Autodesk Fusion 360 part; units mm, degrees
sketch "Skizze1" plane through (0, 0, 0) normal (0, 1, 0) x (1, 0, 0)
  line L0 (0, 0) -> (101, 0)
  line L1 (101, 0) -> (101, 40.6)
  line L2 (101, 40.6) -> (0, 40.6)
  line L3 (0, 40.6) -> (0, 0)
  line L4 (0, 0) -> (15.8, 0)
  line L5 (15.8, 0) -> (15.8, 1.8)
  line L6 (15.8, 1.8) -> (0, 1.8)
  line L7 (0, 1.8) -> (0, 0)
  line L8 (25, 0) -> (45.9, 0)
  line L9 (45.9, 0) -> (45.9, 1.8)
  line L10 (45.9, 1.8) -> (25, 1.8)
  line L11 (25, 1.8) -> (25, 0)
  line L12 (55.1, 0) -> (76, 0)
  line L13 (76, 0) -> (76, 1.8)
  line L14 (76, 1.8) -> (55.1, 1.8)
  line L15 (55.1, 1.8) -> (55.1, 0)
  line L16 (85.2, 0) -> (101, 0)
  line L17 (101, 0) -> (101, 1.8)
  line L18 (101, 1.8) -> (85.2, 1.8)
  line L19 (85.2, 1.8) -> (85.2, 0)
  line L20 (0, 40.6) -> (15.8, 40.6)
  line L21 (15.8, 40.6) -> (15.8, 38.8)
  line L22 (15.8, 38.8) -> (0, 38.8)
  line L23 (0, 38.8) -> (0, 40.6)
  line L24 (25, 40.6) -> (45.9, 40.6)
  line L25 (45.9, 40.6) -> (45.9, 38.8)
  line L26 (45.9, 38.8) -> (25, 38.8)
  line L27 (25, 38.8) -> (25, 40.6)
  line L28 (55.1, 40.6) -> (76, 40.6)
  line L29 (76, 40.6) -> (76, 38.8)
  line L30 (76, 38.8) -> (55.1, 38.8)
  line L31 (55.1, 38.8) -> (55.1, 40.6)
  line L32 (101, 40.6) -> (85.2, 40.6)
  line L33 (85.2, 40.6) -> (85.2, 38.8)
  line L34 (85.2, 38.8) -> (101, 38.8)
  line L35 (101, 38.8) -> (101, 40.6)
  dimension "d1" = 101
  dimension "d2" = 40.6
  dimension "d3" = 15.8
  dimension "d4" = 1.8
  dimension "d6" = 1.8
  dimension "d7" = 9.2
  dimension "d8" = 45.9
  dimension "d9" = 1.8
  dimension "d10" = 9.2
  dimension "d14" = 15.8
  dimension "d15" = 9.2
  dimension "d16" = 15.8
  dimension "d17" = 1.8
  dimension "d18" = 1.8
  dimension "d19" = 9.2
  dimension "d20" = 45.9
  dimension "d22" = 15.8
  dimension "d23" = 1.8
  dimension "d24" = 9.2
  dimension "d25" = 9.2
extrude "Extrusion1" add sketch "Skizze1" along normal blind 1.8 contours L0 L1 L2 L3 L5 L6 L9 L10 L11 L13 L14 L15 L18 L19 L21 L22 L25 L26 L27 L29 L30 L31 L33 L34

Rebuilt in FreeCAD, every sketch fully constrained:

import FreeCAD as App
import Part
import Sketcher
Q = App.Units.Quantity

doc = App.newDocument("Part")
body = doc.addObject("PartDesign::Body", "Body")

sketch1 = doc.addObject("Sketcher::SketchObject", "Sketch")
body.addObject(sketch1)
sketch1.AttachmentSupport = (doc.XZ_Plane, [""])
sketch1.MapMode = "FlatFace"
sketch1.addGeometry([
    Part.LineSegment(App.Vector(15.8, -1.8, 0), App.Vector(15.8, 0, 0)),
    Part.LineSegment(App.Vector(15.8, 0, 0), App.Vector(25, 0, 0)),
    Part.LineSegment(App.Vector(25, 0, 0), App.Vector(25, -1.8, 0)),
    Part.LineSegment(App.Vector(25, -1.8, 0), App.Vector(45.9, -1.8, 0)),
    Part.LineSegment(App.Vector(45.9, -1.8, 0), App.Vector(45.9, 0, 0)),
    Part.LineSegment(App.Vector(45.9, 0, 0), App.Vector(55.1, 0, 0)),
    Part.LineSegment(App.Vector(55.1, 0, 0), App.Vector(55.1, -1.8, 0)),
    Part.LineSegment(App.Vector(55.1, -1.8, 0), App.Vector(76, -1.8, 0)),
    Part.LineSegment(App.Vector(76, -1.8, 0), App.Vector(76, 0, 0)),
    Part.LineSegment(App.Vector(76, 0, 0), App.Vector(85.2, 0, 0)),
    Part.LineSegment(App.Vector(85.2, 0, 0), App.Vector(85.2, -1.8, 0)),
    Part.LineSegment(App.Vector(85.2, -1.8, 0), App.Vector(101, -1.8, 0)),
    Part.LineSegment(App.Vector(101, -1.8, 0), App.Vector(101, -38.8, 0)),
    Part.LineSegment(App.Vector(101, -38.8, 0), App.Vector(85.2, -38.8, 0)),
    Part.LineSegment(App.Vector(85.2, -38.8, 0), App.Vector(85.2, -40.6, 0)),
    Part.LineSegment(App.Vector(85.2, -40.6, 0), App.Vector(76, -40.6, 0)),
    Part.LineSegment(App.Vector(76, -40.6, 0), App.Vector(76, -38.8, 0)),
    Part.LineSegment(App.Vector(76, -38.8, 0), App.Vector(55.1, -38.8, 0)),
    Part.LineSegment(App.Vector(55.1, -38.8, 0), App.Vector(55.1, -40.6, 0)),
    Part.LineSegment(App.Vector(55.1, -40.6, 0), App.Vector(45.9, -40.6, 0)),
    Part.LineSegment(App.Vector(45.9, -40.6, 0), App.Vector(45.9, -38.8, 0)),
    Part.LineSegment(App.Vector(45.9, -38.8, 0), App.Vector(25, -38.8, 0)),
    Part.LineSegment(App.Vector(25, -38.8, 0), App.Vector(25, -40.6, 0)),
    Part.LineSegment(App.Vector(25, -40.6, 0), App.Vector(15.8, -40.6, 0)),
    Part.LineSegment(App.Vector(15.8, -40.6, 0), App.Vector(15.8, -38.8, 0)),
    Part.LineSegment(App.Vector(15.8, -38.8, 0), App.Vector(0, -38.8, 0)),
    Part.LineSegment(App.Vector(0, -38.8, 0), App.Vector(0, -1.8, 0)),
    Part.LineSegment(App.Vector(0, -1.8, 0), App.Vector(15.8, -1.8, 0)),
], False)
sketch1.addConstraint([
    Sketcher.Constraint("Coincident", 0, 2, 1, 1),
    Sketcher.Constraint("Coincident", 1, 2, 2, 1),
    Sketcher.Constraint("Coincident", 2, 2, 3, 1),
    Sketcher.Constraint("Coincident", 3, 2, 4, 1),
    Sketcher.Constraint("Coincident", 4, 2, 5, 1),
    Sketcher.Constraint("Coincident", 5, 2, 6, 1),
    Sketcher.Constraint("Coincident", 6, 2, 7, 1),
    Sketcher.Constraint("Coincident", 7, 2, 8, 1),
    Sketcher.Constraint("Coincident", 8, 2, 9, 1),
    Sketcher.Constraint("Coincident", 9, 2, 10, 1),
    Sketcher.Constraint("Coincident", 10, 2, 11, 1),
    Sketcher.Constraint("Coincident", 11, 2, 12, 1),
    Sketcher.Constraint("Coincident", 12, 2, 13, 1),
    Sketcher.Constraint("Coincident", 13, 2, 14, 1),
    Sketcher.Constraint("Coincident", 14, 2, 15, 1),
    Sketcher.Constraint("Coincident", 15, 2, 16, 1),
    Sketcher.Constraint("Coincident", 16, 2, 17, 1),
    Sketcher.Constraint("Coincident", 17, 2, 18, 1),
    Sketcher.Constraint("Coincident", 18, 2, 19, 1),
    Sketcher.Constraint("Coincident", 19, 2, 20, 1),
    Sketcher.Constraint("Coincident", 20, 2, 21, 1),
    Sketcher.Constraint("Coincident", 21, 2, 22, 1),
    Sketcher.Constraint("Coincident", 22, 2, 23, 1),
    Sketcher.Constraint("Coincident", 23, 2, 24, 1),
    Sketcher.Constraint("Coincident", 24, 2, 25, 1),
    Sketcher.Constraint("Coincident", 25, 2, 26, 1),
    Sketcher.Constraint("Coincident", 26, 2, 27, 1),
    Sketcher.Constraint("Coincident", 27, 2, 0, 1),
    Sketcher.Constraint("Vertical", 0),
    Sketcher.Constraint("Horizontal", 1),
    Sketcher.Constraint("Vertical", 2),
    Sketcher.Constraint("Horizontal", 3),
    Sketcher.Constraint("Vertical", 4),
    Sketcher.Constraint("Horizontal", 5),
    Sketcher.Constraint("Vertical", 6),
    Sketcher.Constraint("Horizontal", 7),
    Sketcher.Constraint("Vertical", 8),
    Sketcher.Constraint("Horizontal", 9),
    Sketcher.Constraint("Vertical", 10),
    Sketcher.Constraint("Horizontal", 11),
    Sketcher.Constraint("Vertical", 12),
    Sketcher.Constraint("Horizontal", 13),
    Sketcher.Constraint("Vertical", 14),
    Sketcher.Constraint("Horizontal", 15),
    Sketcher.Constraint("Vertical", 16),
    Sketcher.Constraint("Horizontal", 17),
    Sketcher.Constraint("Vertical", 18),
    Sketcher.Constraint("Horizontal", 19),
    Sketcher.Constraint("Vertical", 20),
    Sketcher.Constraint("Horizontal", 21),
    Sketcher.Constraint("Vertical", 22),
    Sketcher.Constraint("Horizontal", 23),
    Sketcher.Constraint("Vertical", 24),
    Sketcher.Constraint("Horizontal", 25),
    Sketcher.Constraint("Vertical", 26),
    Sketcher.Constraint("Horizontal", 27),
    Sketcher.Constraint("PointOnObject", 0, 2, -1),
    Sketcher.Constraint("PointOnObject", 4, 2, -1),
    Sketcher.Constraint("PointOnObject", 8, 2, -1),
    Sketcher.Constraint("PointOnObject", 25, 2, -2),
    Sketcher.Constraint("Horizontal", 3, 2, 6, 2),
    Sketcher.Constraint("Horizontal", 7, 2, 10, 2),
    Sketcher.Constraint("Horizontal", 13, 2, 16, 2),
    Sketcher.Constraint("Horizontal", 15, 2, 18, 2),
    Sketcher.Constraint("Horizontal", 17, 2, 20, 2),
    Sketcher.Constraint("Horizontal", 19, 2, 22, 2),
    Sketcher.Constraint("Horizontal", 21, 2, 24, 2),
    Sketcher.Constraint("Horizontal", 11, 2, 26, 2),
    Sketcher.Constraint("Vertical", 10, 2, 13, 2),
    Sketcher.Constraint("Vertical", 8, 2, 15, 2),
    Sketcher.Constraint("Vertical", 6, 2, 17, 2),
    Sketcher.Constraint("Vertical", 4, 2, 19, 2),
    Sketcher.Constraint("Vertical", 2, 2, 21, 2),
    Sketcher.Constraint("Vertical", 0, 2, 23, 2),
    Sketcher.Constraint("Equal", 1, 5),
    Sketcher.Constraint("Equal", 3, 7),
    Sketcher.Constraint("Equal", 5, 9),
    Sketcher.Constraint("Equal", 13, 25),
    Sketcher.Constraint("Equal", 10, 14),
    Sketcher.Constraint("DistanceX", 1, 1, 1, 2, Q("9.2 mm")),
    Sketcher.Constraint("DistanceX", 11, 1, 11, 2, Q("15.8 mm")),
    Sketcher.Constraint("DistanceY", 0, 1, 0, 2, Q("1.8 mm")),
    Sketcher.Constraint("DistanceX", -1, 1, 11, 2, Q("101 mm")),
    Sketcher.Constraint("DistanceY", 14, 2, -1, 1, Q("40.6 mm")),
])
pad1 = doc.addObject("PartDesign::Pad", "Pad")
body.addObject(pad1)
pad1.Profile = sketch1
pad1.Length = 1.8
pad1.Reversed = True

doc.recompute()
